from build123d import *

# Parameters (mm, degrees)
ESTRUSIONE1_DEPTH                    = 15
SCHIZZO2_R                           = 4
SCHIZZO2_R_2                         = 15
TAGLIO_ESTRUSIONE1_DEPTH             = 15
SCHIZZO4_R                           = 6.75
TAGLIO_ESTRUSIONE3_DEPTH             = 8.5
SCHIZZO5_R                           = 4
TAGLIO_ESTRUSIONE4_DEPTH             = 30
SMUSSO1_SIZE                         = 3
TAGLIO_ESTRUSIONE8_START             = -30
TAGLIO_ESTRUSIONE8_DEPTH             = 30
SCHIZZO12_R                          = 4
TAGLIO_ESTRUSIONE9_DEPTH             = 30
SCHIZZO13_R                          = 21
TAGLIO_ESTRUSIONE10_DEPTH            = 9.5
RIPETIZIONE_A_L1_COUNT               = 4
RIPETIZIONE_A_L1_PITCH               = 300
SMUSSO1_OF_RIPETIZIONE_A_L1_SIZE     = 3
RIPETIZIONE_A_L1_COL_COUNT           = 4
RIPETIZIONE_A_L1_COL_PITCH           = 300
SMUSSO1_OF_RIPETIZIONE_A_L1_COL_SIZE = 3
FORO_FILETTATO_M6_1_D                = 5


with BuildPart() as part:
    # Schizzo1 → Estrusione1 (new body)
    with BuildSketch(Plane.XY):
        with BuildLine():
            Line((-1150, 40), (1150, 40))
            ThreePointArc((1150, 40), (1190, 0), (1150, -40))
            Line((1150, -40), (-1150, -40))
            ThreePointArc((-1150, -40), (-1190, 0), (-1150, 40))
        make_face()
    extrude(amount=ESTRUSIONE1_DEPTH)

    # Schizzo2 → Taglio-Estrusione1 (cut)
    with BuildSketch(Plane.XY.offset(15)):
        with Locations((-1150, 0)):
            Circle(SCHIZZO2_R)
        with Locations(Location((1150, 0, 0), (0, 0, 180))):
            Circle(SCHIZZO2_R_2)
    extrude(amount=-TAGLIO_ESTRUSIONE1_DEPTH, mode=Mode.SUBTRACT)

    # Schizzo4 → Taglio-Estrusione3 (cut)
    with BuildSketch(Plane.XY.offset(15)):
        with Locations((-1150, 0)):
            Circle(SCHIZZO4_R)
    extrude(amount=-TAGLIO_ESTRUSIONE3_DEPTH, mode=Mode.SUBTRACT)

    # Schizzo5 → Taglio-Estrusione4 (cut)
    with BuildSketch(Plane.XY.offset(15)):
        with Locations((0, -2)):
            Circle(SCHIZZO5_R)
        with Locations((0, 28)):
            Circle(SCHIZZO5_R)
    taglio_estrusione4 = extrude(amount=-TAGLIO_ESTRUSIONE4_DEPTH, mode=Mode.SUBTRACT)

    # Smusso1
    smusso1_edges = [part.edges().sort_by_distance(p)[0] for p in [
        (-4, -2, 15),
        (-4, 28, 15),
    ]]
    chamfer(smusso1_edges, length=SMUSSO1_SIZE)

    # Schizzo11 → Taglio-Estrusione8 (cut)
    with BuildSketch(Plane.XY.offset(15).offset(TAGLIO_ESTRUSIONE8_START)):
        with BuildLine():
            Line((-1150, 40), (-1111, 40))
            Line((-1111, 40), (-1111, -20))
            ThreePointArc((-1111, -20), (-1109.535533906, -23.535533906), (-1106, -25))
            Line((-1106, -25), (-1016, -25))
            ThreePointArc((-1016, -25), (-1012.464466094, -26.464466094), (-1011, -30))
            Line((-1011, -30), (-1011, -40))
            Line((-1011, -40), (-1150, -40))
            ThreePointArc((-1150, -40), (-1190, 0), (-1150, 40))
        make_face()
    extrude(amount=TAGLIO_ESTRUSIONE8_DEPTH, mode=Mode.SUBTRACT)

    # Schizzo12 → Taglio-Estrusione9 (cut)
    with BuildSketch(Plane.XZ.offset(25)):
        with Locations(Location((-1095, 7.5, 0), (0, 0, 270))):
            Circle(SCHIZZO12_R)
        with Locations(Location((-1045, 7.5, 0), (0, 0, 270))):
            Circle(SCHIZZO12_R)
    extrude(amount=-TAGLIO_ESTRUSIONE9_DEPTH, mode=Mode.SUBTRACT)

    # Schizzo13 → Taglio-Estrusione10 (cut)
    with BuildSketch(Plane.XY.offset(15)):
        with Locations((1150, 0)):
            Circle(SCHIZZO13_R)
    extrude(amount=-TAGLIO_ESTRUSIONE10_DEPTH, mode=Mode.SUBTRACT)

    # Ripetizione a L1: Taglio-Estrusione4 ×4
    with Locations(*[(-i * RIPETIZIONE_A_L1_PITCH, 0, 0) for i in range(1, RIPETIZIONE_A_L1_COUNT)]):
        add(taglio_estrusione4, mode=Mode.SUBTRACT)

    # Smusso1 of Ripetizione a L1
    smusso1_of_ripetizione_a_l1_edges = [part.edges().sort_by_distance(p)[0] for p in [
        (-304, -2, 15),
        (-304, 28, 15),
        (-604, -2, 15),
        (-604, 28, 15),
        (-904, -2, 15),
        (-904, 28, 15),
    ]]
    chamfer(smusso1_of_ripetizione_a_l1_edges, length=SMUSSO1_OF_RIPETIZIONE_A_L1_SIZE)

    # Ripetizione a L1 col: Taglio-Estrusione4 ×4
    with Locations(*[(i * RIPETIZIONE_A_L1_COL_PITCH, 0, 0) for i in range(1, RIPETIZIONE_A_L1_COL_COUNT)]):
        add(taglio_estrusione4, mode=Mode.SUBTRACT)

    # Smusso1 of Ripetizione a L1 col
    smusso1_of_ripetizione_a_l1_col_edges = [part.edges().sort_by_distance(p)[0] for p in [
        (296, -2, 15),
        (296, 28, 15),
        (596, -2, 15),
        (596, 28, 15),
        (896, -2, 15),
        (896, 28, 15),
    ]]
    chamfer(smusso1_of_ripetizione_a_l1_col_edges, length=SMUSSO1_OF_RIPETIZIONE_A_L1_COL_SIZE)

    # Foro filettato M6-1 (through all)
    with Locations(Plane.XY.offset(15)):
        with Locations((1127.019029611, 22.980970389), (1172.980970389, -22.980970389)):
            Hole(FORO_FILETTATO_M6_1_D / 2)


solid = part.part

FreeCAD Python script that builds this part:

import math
import FreeCAD as App
import Part
import Sketcher
Q = App.Units.Quantity


def edges_at(feature, points):
    """Names of the edges that pass closest to the given points."""
    edges = feature.Shape.Edges
    near = lambda p: min(range(len(edges)), key=lambda i: edges[i].distToShape(Part.Vertex(*p))[0])
    return sorted({f"Edge{near(p) + 1}" for p in points})

doc = App.newDocument("Part")
body = doc.addObject("PartDesign::Body", "Body")

# Sketch on XY plane
sketch1 = doc.addObject("Sketcher::SketchObject", "Sketch")
body.addObject(sketch1)
sketch1.AttachmentSupport = (doc.XY_Plane, [""])
sketch1.MapMode = "FlatFace"
sketch1.addGeometry([
    Part.LineSegment(App.Vector(1150, 40, 0), App.Vector(-1150, 40, 0)),
    Part.ArcOfCircle(Part.Circle(App.Vector(-1150, 0, 0), App.Vector(0, 0, 1), 40), math.radians(90), math.radians(270)),
    Part.LineSegment(App.Vector(-1150, -40, 0), App.Vector(1150, -40, 0)),
    Part.ArcOfCircle(Part.Circle(App.Vector(1150, 0, 0), App.Vector(0, 0, 1), 40), math.radians(-90), math.radians(90)),
], False)
sketch1.addConstraint([
    Sketcher.Constraint("Tangent", 0, 2, 1, 1),
    Sketcher.Constraint("Tangent", 1, 2, 2, 1),
    Sketcher.Constraint("Tangent", 2, 2, 3, 1),
    Sketcher.Constraint("Tangent", 3, 2, 0, 1),
    Sketcher.Constraint("Horizontal", 0),
    Sketcher.Constraint("Horizontal", 2),
    Sketcher.Constraint("Symmetric", 1, 3, 3, 3, -1, 1),
    Sketcher.Constraint("Radius", 1, Q("40 mm")),
    Sketcher.Constraint("DistanceX", 0, 2, 0, 1, Q("2300 mm")),
])
pad1 = doc.addObject("PartDesign::Pad", "Pad")
body.addObject(pad1)
pad1.Profile = sketch1
pad1.Length = 15

# Sketch on XY plane
sketch2 = doc.addObject("Sketcher::SketchObject", "Sketch001")
body.addObject(sketch2)
sketch2.AttachmentSupport = (doc.XY_Plane, [""])
sketch2.MapMode = "FlatFace"
sketch2.AttachmentOffset = App.Placement(App.Vector(0, 0, 15), App.Rotation())
sketch2.addGeometry([
    Part.Circle(App.Vector(-1150, 0, 0), App.Vector(0, 0, 1), 4),
    Part.Circle(App.Vector(1150, 0, 0), App.Vector(0, 0, 1), 15),
], False)
sketch2.addConstraint([
    Sketcher.Constraint("Symmetric", 0, 3, 1, 3, -1, 1),
    Sketcher.Constraint("PointOnObject", 0, 3, -1),
    Sketcher.Constraint("Diameter", 0, Q("8 mm")),
    Sketcher.Constraint("Diameter", 1, Q("30 mm")),
    Sketcher.Constraint("DistanceX", 0, 3, -1, 1, Q("1150 mm")),
])
pocket1 = doc.addObject("PartDesign::Pocket", "Pocket")
body.addObject(pocket1)
pocket1.Profile = sketch2
pocket1.Length = 15

# Sketch on XY plane
sketch3 = doc.addObject("Sketcher::SketchObject", "Sketch002")
body.addObject(sketch3)
sketch3.AttachmentSupport = (doc.XY_Plane, [""])
sketch3.MapMode = "FlatFace"
sketch3.AttachmentOffset = App.Placement(App.Vector(0, 0, 15), App.Rotation())
sketch3.addGeometry(Part.Circle(App.Vector(-1150, 0, 0), App.Vector(0, 0, 1), 6.75), False)
sketch3.addConstraint([
    Sketcher.Constraint("PointOnObject", 0, 3, -1),
    Sketcher.Constraint("Diameter", 0, Q("13.5 mm")),
    Sketcher.Constraint("DistanceX", 0, 3, -1, 1, Q("1150 mm")),
])
pocket2 = doc.addObject("PartDesign::Pocket", "Pocket001")
body.addObject(pocket2)
pocket2.Profile = sketch3
pocket2.Length = 8.5

# Sketch on XY plane
sketch4 = doc.addObject("Sketcher::SketchObject", "Sketch003")
body.addObject(sketch4)
sketch4.AttachmentSupport = (doc.XY_Plane, [""])
sketch4.MapMode = "FlatFace"
sketch4.AttachmentOffset = App.Placement(App.Vector(0, 0, 15), App.Rotation())
sketch4.addGeometry([
    Part.Circle(App.Vector(0, -2, 0), App.Vector(0, 0, 1), 4),
    Part.Circle(App.Vector(0, 28, 0), App.Vector(0, 0, 1), 4),
], False)
sketch4.addConstraint([
    Sketcher.Constraint("Equal", 0, 1),
    Sketcher.Constraint("PointOnObject", 0, 3, -2),
    Sketcher.Constraint("PointOnObject", 1, 3, -2),
    Sketcher.Constraint("Diameter", 0, Q("8 mm")),
    Sketcher.Constraint("DistanceY", 0, 3, -1, 1, Q("2 mm")),
    Sketcher.Constraint("DistanceY", -1, 1, 1, 3, Q("28 mm")),
])
pocket3 = doc.addObject("PartDesign::Pocket", "Pocket002")
body.addObject(pocket3)
pocket3.Profile = sketch4
pocket3.Length = 30
doc.recompute()

chamfer = doc.addObject("PartDesign::Chamfer", "Chamfer")
body.addObject(chamfer)
chamfer.Base = (pocket3, edges_at(pocket3, [(-4, -2, 15), (-4, 28, 15)]))
chamfer.Size = 3

# Sketch on XY plane
sketch5 = doc.addObject("Sketcher::SketchObject", "Sketch004")
body.addObject(sketch5)
sketch5.AttachmentSupport = (doc.XY_Plane, [""])
sketch5.MapMode = "FlatFace"
sketch5.AttachmentOffset = App.Placement(App.Vector(0, 0, -15), App.Rotation())
sketch5.addGeometry([
    Part.LineSegment(App.Vector(-1111, 40, 0), App.Vector(-1150, 40, 0)),  # 0
    Part.ArcOfCircle(Part.Circle(App.Vector(-1150, 0, 0), App.Vector(0, 0, 1), 40), math.radians(90), math.radians(270)),  # 1
    Part.LineSegment(App.Vector(-1150, -40, 0), App.Vector(-1011, -40, 0)),  # 2
    Part.LineSegment(App.Vector(-1011, -40, 0), App.Vector(-1011, -30, 0)),  # 3
    Part.ArcOfCircle(Part.Circle(App.Vector(-1016, -30, 0), App.Vector(0, 0, 1), 5), math.radians(0), math.radians(90)),  # 4
    Part.LineSegment(App.Vector(-1016, -25, 0), App.Vector(-1106, -25, 0)),  # 5
    Part.ArcOfCircle(Part.Circle(App.Vector(-1106, -20, 0), App.Vector(0, 0, 1), 5), math.radians(180), math.radians(270)),  # 6
    Part.LineSegment(App.Vector(-1111, -20, 0), App.Vector(-1111, 40, 0)),  # 7
], False)
sketch5.addConstraint([
    Sketcher.Constraint("Tangent", 0, 2, 1, 1),
    Sketcher.Constraint("Tangent", 1, 2, 2, 1),
    Sketcher.Constraint("Coincident", 2, 2, 3, 1),
    Sketcher.Constraint("Tangent", 3, 2, 4, 1),
    Sketcher.Constraint("Tangent", 4, 2, 5, 1),
    Sketcher.Constraint("Tangent", 5, 2, 6, 2),
    Sketcher.Constraint("Tangent", 6, 1, 7, 1),
    Sketcher.Constraint("Coincident", 7, 2, 0, 1),
    Sketcher.Constraint("Horizontal", 0),
    Sketcher.Constraint("Horizontal", 2),
    Sketcher.Constraint("Vertical", 3),
    Sketcher.Constraint("Horizontal", 5),
    Sketcher.Constraint("Vertical", 7),
    Sketcher.Constraint("Equal", 4, 6),
    Sketcher.Constraint("PointOnObject", 1, 3, -1),
    Sketcher.Constraint("Radius", 1, Q("40 mm")),
    Sketcher.Constraint("Radius", 4, Q("5 mm")),
    Sketcher.Constraint("DistanceX", 0, 2, 0, 1, Q("39 mm")),
    Sketcher.Constraint("DistanceX", 2, 1, 2, 2, Q("139 mm")),
    Sketcher.Constraint("DistanceY", 3, 1, 3, 2, Q("10 mm")),
    Sketcher.Constraint("DistanceX", 1, 3, -1, 1, Q("1150 mm")),
])
pocket4 = doc.addObject("PartDesign::Pocket", "Pocket003")
body.addObject(pocket4)
pocket4.Profile = sketch5
pocket4.Length = 30
pocket4.Reversed = True

# Sketch on XZ plane
sketch6 = doc.addObject("Sketcher::SketchObject", "Sketch005")
body.addObject(sketch6)
sketch6.AttachmentSupport = (doc.XZ_Plane, [""])
sketch6.MapMode = "FlatFace"
sketch6.AttachmentOffset = App.Placement(App.Vector(0, 0, 25), App.Rotation())
sketch6.addGeometry([
    Part.Circle(App.Vector(-1095, 7.5, 0), App.Vector(0, 0, 1), 4),
    Part.Circle(App.Vector(-1045, 7.5, 0), App.Vector(0, 0, 1), 4),
], False)
sketch6.addConstraint([
    Sketcher.Constraint("Equal", 0, 1),
    Sketcher.Constraint("Horizontal", 0, 3, 1, 3),
    Sketcher.Constraint("Diameter", 0, Q("8 mm")),
    Sketcher.Constraint("DistanceX", 0, 3, -1, 1, Q("1095 mm")),
    Sketcher.Constraint("DistanceX", 1, 3, -1, 1, Q("1045 mm")),
    Sketcher.Constraint("DistanceY", -1, 1, 0, 3, Q("7.5 mm")),
])
pocket5 = doc.addObject("PartDesign::Pocket", "Pocket004")
body.addObject(pocket5)
pocket5.Profile = sketch6
pocket5.Length = 30

# Sketch on XY plane
sketch7 = doc.addObject("Sketcher::SketchObject", "Sketch006")
body.addObject(sketch7)
sketch7.AttachmentSupport = (doc.XY_Plane, [""])
sketch7.MapMode = "FlatFace"
sketch7.AttachmentOffset = App.Placement(App.Vector(0, 0, 15), App.Rotation())
sketch7.addGeometry(Part.Circle(App.Vector(1150, 0, 0), App.Vector(0, 0, 1), 21), False)
sketch7.addConstraint([
    Sketcher.Constraint("PointOnObject", 0, 3, -1),
    Sketcher.Constraint("Diameter", 0, Q("42 mm")),
    Sketcher.Constraint("DistanceX", -1, 1, 0, 3, Q("1150 mm")),
])
pocket6 = doc.addObject("PartDesign::Pocket", "Pocket005")
body.addObject(pocket6)
pocket6.Profile = sketch7
pocket6.Length = 9.5
doc.recompute()

linearpattern = doc.addObject("PartDesign::LinearPattern", "LinearPattern")
body.addObject(linearpattern)
linearpattern.Originals = [pocket3]
linearpattern.Direction = (doc.X_Axis, [""])
linearpattern.Mode = "offset"
linearpattern.Offset = 300
linearpattern.Occurrences = 4
linearpattern.Reversed = True
body.Tip = linearpattern
doc.recompute()

chamfer2 = doc.addObject("PartDesign::Chamfer", "Chamfer001")
body.addObject(chamfer2)
chamfer2.Base = (linearpattern, edges_at(linearpattern, [
    (-304, -2, 15),
    (-304, 28, 15),
    (-604, -2, 15),
    (-604, 28, 15),
    (-904, -2, 15),
    (-904, 28, 15),
]))
chamfer2.Size = 3
doc.recompute()

linearpattern2 = doc.addObject("PartDesign::LinearPattern", "LinearPattern001")
body.addObject(linearpattern2)
linearpattern2.Originals = [pocket3]
linearpattern2.Direction = (doc.X_Axis, [""])
linearpattern2.Mode = "offset"
linearpattern2.Offset = 300
linearpattern2.Occurrences = 4
body.Tip = linearpattern2
doc.recompute()

chamfer3 = doc.addObject("PartDesign::Chamfer", "Chamfer002")
body.addObject(chamfer3)
chamfer3.Base = (linearpattern2, edges_at(linearpattern2, [
    (296, -2, 15),
    (296, 28, 15),
    (596, -2, 15),
    (596, 28, 15),
    (896, -2, 15),
    (896, 28, 15),
]))
chamfer3.Size = 3

# Sketch on XY plane
sketch8 = doc.addObject("Sketcher::SketchObject", "Sketch007")
body.addObject(sketch8)
sketch8.AttachmentSupport = (doc.XY_Plane, [""])
sketch8.MapMode = "FlatFace"
sketch8.AttachmentOffset = App.Placement(App.Vector(0, 0, 15), App.Rotation())
sketch8.addGeometry([
    Part.Circle(App.Vector(1127.01903, 22.98097, 0), App.Vector(0, 0, 1), 2.5),
    Part.Circle(App.Vector(1172.98097, -22.98097, 0), App.Vector(0, 0, 1), 2.5),
], False)
sketch8.addConstraint([
    Sketcher.Constraint("Equal", 0, 1),
    Sketcher.Constraint("Diameter", 0, Q("5 mm")),
    Sketcher.Constraint("DistanceX", -1, 1, 0, 3, Q("1127.01903 mm")),
    Sketcher.Constraint("DistanceY", -1, 1, 0, 3, Q("22.98097 mm")),
    Sketcher.Constraint("DistanceX", -1, 1, 1, 3, Q("1172.98097 mm")),
    Sketcher.Constraint("DistanceY", 1, 3, -1, 1, Q("22.98097 mm")),
])
doc.recompute()
hole = doc.addObject("PartDesign::Hole", "Hole")
body.addObject(hole)
hole.Profile = sketch8
hole.ThreadType = "None"
hole.Diameter = 5
hole.DepthType = "ThroughAll"

doc.recompute()
